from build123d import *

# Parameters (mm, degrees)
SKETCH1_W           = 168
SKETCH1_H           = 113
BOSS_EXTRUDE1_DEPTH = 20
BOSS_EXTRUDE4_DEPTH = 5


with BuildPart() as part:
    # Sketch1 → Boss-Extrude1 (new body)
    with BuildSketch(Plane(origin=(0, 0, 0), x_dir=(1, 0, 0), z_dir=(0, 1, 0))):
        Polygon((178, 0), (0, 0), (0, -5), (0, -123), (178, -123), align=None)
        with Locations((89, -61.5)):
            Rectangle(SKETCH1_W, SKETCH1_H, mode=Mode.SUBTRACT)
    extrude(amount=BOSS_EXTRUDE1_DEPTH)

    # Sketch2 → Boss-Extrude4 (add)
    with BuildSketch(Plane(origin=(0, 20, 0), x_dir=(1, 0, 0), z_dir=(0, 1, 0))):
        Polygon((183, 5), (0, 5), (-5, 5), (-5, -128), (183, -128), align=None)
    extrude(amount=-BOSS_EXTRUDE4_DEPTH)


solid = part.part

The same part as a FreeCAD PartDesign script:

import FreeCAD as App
import Part
import Sketcher

doc = App.newDocument("Part")
body = doc.addObject("PartDesign::Body", "Body")

sketch1 = doc.addObject("Sketcher::SketchObject", "Sketch")
body.addObject(sketch1)
sketch1.AttachmentSupport = (doc.XZ_Plane, [""])
sketch1.MapMode = "FlatFace"
sketch1.addGeometry(Part.LineSegment(App.Vector(178, 0, 0), App.Vector(0, 0, 0)), False)
sketch1.addGeometry(Part.LineSegment(App.Vector(0, 0, 0), App.Vector(0, 123, 0)), False)
sketch1.addGeometry(Part.LineSegment(App.Vector(0, 123, 0), App.Vector(178, 123, 0)), False)
sketch1.addGeometry(Part.LineSegment(App.Vector(178, 123, 0), App.Vector(178, 0, 0)), False)
sketch1.addGeometry(Part.LineSegment(App.Vector(173, 118, 0), App.Vector(5, 118, 0)), False)
sketch1.addGeometry(Part.LineSegment(App.Vector(5, 118, 0), App.Vector(5, 5, 0)), False)
sketch1.addGeometry(Part.LineSegment(App.Vector(5, 5, 0), App.Vector(173, 5, 0)), False)
sketch1.addGeometry(Part.LineSegment(App.Vector(173, 5, 0), App.Vector(173, 118, 0)), False)
sketch1.addConstraint(Sketcher.Constraint("Coincident", 0, 2, 1, 1))
sketch1.addConstraint(Sketcher.Constraint("Coincident", 1, 2, 2, 1))
sketch1.addConstraint(Sketcher.Constraint("Coincident", 2, 2, 3, 1))
sketch1.addConstraint(Sketcher.Constraint("Coincident", 3, 2, 0, 1))
sketch1.addConstraint(Sketcher.Constraint("Coincident", 4, 2, 5, 1))
sketch1.addConstraint(Sketcher.Constraint("Coincident", 5, 2, 6, 1))
sketch1.addConstraint(Sketcher.Constraint("Coincident", 6, 2, 7, 1))
sketch1.addConstraint(Sketcher.Constraint("Coincident", 7, 2, 4, 1))
sketch1.addConstraint(Sketcher.Constraint("Horizontal", 0))
sketch1.addConstraint(Sketcher.Constraint("Vertical", 1))
sketch1.addConstraint(Sketcher.Constraint("Horizontal", 2))
sketch1.addConstraint(Sketcher.Constraint("Vertical", 3))
sketch1.addConstraint(Sketcher.Constraint("Horizontal", 4))
sketch1.addConstraint(Sketcher.Constraint("Vertical", 5))
sketch1.addConstraint(Sketcher.Constraint("Horizontal", 6))
sketch1.addConstraint(Sketcher.Constraint("Vertical", 7))
sketch1.addConstraint(Sketcher.Constraint("Coincident", 0, 2, -1, 1))
sketch1.addConstraint(Sketcher.Constraint("DistanceX", 0, 2, 0, 1, 178.0))
sketch1.addConstraint(Sketcher.Constraint("DistanceX", 4, 2, 4, 1, 168.0))
sketch1.addConstraint(Sketcher.Constraint("DistanceY", 1, 1, 1, 2, 123.0))
sketch1.addConstraint(Sketcher.Constraint("DistanceY", 5, 2, 5, 1, 113.0))
sketch1.addConstraint(Sketcher.Constraint("DistanceX", -1, 1, 4, 2, 5.0))
sketch1.addConstraint(Sketcher.Constraint("DistanceY", -1, 1, 4, 2, 118.0))
pad1 = doc.addObject("PartDesign::Pad", "Pad")
body.addObject(pad1)
pad1.Profile = sketch1
pad1.Length = 20
pad1.Reversed = True

sketch2 = doc.addObject("Sketcher::SketchObject", "Sketch001")
body.addObject(sketch2)
sketch2.AttachmentSupport = (doc.XZ_Plane, [""])
sketch2.MapMode = "FlatFace"
sketch2.AttachmentOffset = App.Placement(App.Vector(0, 0, -20), App.Rotation())
sketch2.addGeometry(Part.LineSegment(App.Vector(183, -5, 0), App.Vector(-5, -5, 0)), False)
sketch2.addGeometry(Part.LineSegment(App.Vector(-5, -5, 0), App.Vector(-5, 128, 0)), False)
sketch2.addGeometry(Part.LineSegment(App.Vector(-5, 128, 0), App.Vector(183, 128, 0)), False)
sketch2.addGeometry(Part.LineSegment(App.Vector(183, 128, 0), App.Vector(183, -5, 0)), False)
sketch2.addConstraint(Sketcher.Constraint("Coincident", 0, 2, 1, 1))
sketch2.addConstraint(Sketcher.Constraint("Coincident", 1, 2, 2, 1))
sketch2.addConstraint(Sketcher.Constraint("Coincident", 2, 2, 3, 1))
sketch2.addConstraint(Sketcher.Constraint("Coincident", 3, 2, 0, 1))
sketch2.addConstraint(Sketcher.Constraint("Horizontal", 0))
sketch2.addConstraint(Sketcher.Constraint("Vertical", 1))
sketch2.addConstraint(Sketcher.Constraint("Horizontal", 2))
sketch2.addConstraint(Sketcher.Constraint("Vertical", 3))
sketch2.addConstraint(Sketcher.Constraint("DistanceX", 0, 2, 0, 1, 188.0))
sketch2.addConstraint(Sketcher.Constraint("DistanceY", 1, 1, 1, 2, 133.0))
sketch2.addConstraint(Sketcher.Constraint("DistanceX", 0, 2, -1, 1, 5.0))
sketch2.addConstraint(Sketcher.Constraint("DistanceY", 0, 2, -1, 1, 5.0))
pad2 = doc.addObject("PartDesign::Pad", "Pad001")
body.addObject(pad2)
pad2.Profile = sketch2
pad2.Length = 5

doc.recompute()
